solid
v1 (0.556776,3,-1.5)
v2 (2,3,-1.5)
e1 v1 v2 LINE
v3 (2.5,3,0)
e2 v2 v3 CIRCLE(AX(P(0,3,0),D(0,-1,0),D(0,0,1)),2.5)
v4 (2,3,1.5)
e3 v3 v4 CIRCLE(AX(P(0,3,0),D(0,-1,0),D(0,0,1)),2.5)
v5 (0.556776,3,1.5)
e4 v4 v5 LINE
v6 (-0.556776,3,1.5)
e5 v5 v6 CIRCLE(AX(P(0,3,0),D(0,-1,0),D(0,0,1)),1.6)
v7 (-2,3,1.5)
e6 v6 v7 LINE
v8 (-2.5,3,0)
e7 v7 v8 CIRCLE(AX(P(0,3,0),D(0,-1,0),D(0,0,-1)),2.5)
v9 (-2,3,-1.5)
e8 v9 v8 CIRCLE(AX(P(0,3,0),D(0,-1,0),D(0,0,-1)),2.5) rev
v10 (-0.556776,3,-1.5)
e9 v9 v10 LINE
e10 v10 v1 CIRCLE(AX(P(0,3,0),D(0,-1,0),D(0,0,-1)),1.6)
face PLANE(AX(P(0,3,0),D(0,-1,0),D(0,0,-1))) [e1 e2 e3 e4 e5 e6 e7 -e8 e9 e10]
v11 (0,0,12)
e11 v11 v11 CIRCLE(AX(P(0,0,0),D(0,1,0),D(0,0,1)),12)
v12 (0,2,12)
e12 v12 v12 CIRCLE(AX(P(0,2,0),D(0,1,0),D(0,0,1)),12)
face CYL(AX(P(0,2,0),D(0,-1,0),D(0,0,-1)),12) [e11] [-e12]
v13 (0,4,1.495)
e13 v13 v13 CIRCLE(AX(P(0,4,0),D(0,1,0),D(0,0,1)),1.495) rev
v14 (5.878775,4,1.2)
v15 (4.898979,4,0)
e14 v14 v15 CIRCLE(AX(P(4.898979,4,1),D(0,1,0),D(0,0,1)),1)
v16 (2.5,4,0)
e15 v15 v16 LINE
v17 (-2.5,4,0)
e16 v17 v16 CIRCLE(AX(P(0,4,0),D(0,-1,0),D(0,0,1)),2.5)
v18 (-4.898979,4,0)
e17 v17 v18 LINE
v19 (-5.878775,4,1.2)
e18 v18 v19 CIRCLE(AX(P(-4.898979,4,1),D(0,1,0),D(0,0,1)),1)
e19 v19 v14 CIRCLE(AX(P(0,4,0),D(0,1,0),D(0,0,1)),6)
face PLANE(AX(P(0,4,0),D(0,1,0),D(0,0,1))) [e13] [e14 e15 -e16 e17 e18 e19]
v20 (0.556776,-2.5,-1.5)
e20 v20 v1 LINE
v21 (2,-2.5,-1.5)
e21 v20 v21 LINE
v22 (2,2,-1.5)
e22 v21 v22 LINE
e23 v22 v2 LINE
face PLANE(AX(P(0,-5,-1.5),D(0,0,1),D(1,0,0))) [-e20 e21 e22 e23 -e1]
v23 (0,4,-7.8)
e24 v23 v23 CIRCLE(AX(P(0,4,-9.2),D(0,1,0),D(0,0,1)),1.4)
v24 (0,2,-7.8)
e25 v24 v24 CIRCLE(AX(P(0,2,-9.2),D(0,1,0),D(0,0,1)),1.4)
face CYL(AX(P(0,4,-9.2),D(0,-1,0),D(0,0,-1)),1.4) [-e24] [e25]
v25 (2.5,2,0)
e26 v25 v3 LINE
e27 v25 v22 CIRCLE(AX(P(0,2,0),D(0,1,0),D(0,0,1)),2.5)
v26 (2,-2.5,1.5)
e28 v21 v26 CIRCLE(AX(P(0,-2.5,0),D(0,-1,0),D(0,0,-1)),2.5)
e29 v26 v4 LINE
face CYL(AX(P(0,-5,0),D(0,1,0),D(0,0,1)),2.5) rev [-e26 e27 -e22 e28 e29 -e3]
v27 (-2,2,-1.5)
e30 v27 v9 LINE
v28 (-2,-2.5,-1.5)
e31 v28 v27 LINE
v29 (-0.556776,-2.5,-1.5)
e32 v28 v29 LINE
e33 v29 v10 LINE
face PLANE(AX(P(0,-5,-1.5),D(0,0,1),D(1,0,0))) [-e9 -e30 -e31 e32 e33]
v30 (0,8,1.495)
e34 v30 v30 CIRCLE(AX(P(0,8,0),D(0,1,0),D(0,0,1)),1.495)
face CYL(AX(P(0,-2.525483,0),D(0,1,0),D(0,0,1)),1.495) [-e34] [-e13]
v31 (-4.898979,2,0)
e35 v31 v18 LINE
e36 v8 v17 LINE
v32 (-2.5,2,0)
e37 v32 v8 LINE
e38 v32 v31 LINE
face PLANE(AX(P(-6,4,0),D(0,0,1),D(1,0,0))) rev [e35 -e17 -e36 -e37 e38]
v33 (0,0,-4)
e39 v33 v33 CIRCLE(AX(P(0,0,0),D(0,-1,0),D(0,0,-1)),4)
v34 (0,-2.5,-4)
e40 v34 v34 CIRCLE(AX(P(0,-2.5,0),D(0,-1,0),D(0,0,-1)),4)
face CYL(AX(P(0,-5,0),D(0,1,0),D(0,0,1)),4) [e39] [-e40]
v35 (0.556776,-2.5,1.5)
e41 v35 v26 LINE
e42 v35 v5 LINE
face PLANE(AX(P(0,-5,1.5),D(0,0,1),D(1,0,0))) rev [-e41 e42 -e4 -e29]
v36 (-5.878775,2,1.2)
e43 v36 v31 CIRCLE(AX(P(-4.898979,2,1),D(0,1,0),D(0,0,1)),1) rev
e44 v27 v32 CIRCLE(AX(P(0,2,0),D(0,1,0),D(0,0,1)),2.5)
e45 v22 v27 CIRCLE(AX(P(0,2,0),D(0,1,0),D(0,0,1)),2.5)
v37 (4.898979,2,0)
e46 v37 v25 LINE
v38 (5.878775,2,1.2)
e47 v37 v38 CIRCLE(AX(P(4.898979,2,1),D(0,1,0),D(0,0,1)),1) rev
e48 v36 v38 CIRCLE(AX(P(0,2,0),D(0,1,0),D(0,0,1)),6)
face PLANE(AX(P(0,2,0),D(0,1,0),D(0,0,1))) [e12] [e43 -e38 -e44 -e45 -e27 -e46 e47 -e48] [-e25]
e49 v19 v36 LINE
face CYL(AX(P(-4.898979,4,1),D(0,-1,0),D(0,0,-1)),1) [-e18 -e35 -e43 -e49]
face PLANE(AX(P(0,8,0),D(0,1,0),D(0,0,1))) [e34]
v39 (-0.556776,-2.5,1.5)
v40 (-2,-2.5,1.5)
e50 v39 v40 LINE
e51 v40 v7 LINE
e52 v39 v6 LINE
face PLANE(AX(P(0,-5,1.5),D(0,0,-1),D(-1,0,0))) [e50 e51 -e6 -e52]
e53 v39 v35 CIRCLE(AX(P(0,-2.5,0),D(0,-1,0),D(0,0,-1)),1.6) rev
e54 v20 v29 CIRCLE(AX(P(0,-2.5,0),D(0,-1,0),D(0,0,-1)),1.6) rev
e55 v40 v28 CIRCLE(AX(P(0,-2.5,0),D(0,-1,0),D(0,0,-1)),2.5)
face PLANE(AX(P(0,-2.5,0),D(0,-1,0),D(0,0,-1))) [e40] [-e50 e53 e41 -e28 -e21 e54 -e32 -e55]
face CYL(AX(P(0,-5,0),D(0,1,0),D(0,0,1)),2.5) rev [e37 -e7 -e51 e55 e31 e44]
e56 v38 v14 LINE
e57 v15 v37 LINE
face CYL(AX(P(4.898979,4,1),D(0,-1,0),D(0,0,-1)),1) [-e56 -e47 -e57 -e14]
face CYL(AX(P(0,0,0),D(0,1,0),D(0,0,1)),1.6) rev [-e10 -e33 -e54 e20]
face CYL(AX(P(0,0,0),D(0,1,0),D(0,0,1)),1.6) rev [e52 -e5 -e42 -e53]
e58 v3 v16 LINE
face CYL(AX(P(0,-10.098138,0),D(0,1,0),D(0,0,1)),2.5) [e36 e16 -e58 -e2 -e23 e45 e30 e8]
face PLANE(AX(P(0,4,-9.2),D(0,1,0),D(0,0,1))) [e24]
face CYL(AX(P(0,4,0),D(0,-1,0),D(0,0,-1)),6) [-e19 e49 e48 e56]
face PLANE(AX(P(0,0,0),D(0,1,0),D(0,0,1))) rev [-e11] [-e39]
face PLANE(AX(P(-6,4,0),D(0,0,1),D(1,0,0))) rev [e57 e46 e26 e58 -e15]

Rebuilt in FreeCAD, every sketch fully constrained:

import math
import FreeCAD as App
import Part
import Sketcher

V = App.Vector
Q = App.Units.Quantity


def edges_at(feature, points):
    """Names of the edges that pass closest to the given points."""
    edges = feature.Shape.Edges
    near = lambda p: min(range(len(edges)), key=lambda i: edges[i].distToShape(Part.Vertex(*p))[0])
    return sorted({f"Edge{near(p) + 1}" for p in points})

doc = App.newDocument("Part")
body = doc.addObject("PartDesign::Body", "Body")

# Sketch on XZ plane
sketch1 = body.newObject("Sketcher::SketchObject", "Sketch")
sketch1.AttachmentSupport = (doc.getObject("XZ_Plane"), [""])
sketch1.MapMode = "FlatFace"
sketch1.addGeometry(Part.Circle(V(0, 0, 0), V(0, 0, 1), 12), False)
sketch1.addConstraint(Sketcher.Constraint("Coincident", 0, 3, -1, 1))
sketch1.addConstraint(Sketcher.Constraint("Diameter", 0, Q("24 mm")))
pad1 = body.newObject("PartDesign::Pad", "Pad")
pad1.Profile = sketch1
pad1.Length = 2
pad1.Reversed = True

# Sketch on XZ plane
sketch2 = body.newObject("Sketcher::SketchObject", "Sketch001")
sketch2.AttachmentSupport = (doc.getObject("XZ_Plane"), [""])
sketch2.MapMode = "FlatFace"
sketch2.AttachmentOffset = App.Placement(V(0, 0, -2), App.Rotation())
sketch2.addGeometry(Part.Circle(V(0, -9.5, 0), V(0, 0, 1), 1.5), False)
sketch2.addGeometry(Part.LineSegment(V(6, 0, 0), V(-6, 0, 0)), False)
sketch2.addGeometry(Part.ArcOfCircle(Part.Circle(V(0, 0, 0), V(0, 0, 1), 6), math.radians(0), math.radians(180)), False)
sketch2.addConstraint(Sketcher.Constraint("Coincident", 1, 1, 2, 1))
sketch2.addConstraint(Sketcher.Constraint("Coincident", 2, 2, 1, 2))
sketch2.addConstraint(Sketcher.Constraint("Horizontal", 1))
sketch2.addConstraint(Sketcher.Constraint("Coincident", 2, 3, -1, 1))
sketch2.addConstraint(Sketcher.Constraint("PointOnObject", 0, 3, -2))
sketch2.addConstraint(Sketcher.Constraint("PointOnObject", 1, 1, -1))
sketch2.addConstraint(Sketcher.Constraint("Diameter", 0, Q("3 mm")))
sketch2.addConstraint(Sketcher.Constraint("Radius", 2, Q("6 mm")))
sketch2.addConstraint(Sketcher.Constraint("DistanceY", 0, 3, -1, 1, Q("9.5 mm")))
pad2 = body.newObject("PartDesign::Pad", "Pad001")
pad2.Profile = sketch2
pad2.Length = 2
pad2.Reversed = True

# Sketch on XZ plane
sketch3 = body.newObject("Sketcher::SketchObject", "Sketch002")
sketch3.AttachmentSupport = (doc.getObject("XZ_Plane"), [""])
sketch3.MapMode = "FlatFace"
sketch3.addGeometry(Part.Circle(V(0, 0, 0), V(0, 0, 1), 1.5), False)
sketch3.addConstraint(Sketcher.Constraint("Coincident", 0, 3, -1, 1))
sketch3.addConstraint(Sketcher.Constraint("Diameter", 0, Q("3 mm")))
pocket1 = body.newObject("PartDesign::Pocket", "Pocket")
pocket1.Profile = sketch3
pocket1.Length = 5

# Sketch on XZ plane
sketch4 = body.newObject("Sketcher::SketchObject", "Sketch003")
sketch4.AttachmentSupport = (doc.getObject("XZ_Plane"), [""])
sketch4.MapMode = "FlatFace"
sketch4.AttachmentOffset = App.Placement(V(0, 0, -2), App.Rotation())
sketch4.addGeometry(Part.Circle(V(0, 0, 0), V(0, 0, 1), 4), False)
sketch4.addConstraint(Sketcher.Constraint("Coincident", 0, 3, -1, 1))
sketch4.addConstraint(Sketcher.Constraint("Diameter", 0, Q("8 mm")))
pocket2 = body.newObject("PartDesign::Pocket", "Pocket001")
pocket2.Profile = sketch4
pocket2.Length = 2

# Sketch on XZ plane
sketch5 = body.newObject("Sketcher::SketchObject", "Sketch004")
sketch5.AttachmentSupport = (doc.getObject("XZ_Plane"), [""])
sketch5.MapMode = "FlatFace"
sketch5.AttachmentOffset = App.Placement(V(0, 0, -2), App.Rotation())
sketch5.addGeometry(Part.Circle(V(0, -9.5, 0), V(0, 0, 1), 1.5), False)
sketch5.addConstraint(Sketcher.Constraint("PointOnObject", 0, 3, -2))
sketch5.addConstraint(Sketcher.Constraint("Diameter", 0, Q("3 mm")))
sketch5.addConstraint(Sketcher.Constraint("DistanceY", 0, 3, -1, 1, Q("9.5 mm")))
pocket3 = body.newObject("PartDesign::Pocket", "Pocket002")
pocket3.Profile = sketch5
pocket3.Length = 2

# Sketch on XZ plane
sketch6 = body.newObject("Sketcher::SketchObject", "Sketch005")
sketch6.AttachmentSupport = (doc.getObject("XZ_Plane"), [""])
sketch6.MapMode = "FlatFace"
sketch6.AttachmentOffset = App.Placement(V(0, 0, -2), App.Rotation())
sketch6.addGeometry(Part.Circle(V(0, -9.2, 0), V(0, 0, 1), 1.4), False)
sketch6.addConstraint(Sketcher.Constraint("PointOnObject", 0, 3, -2))
sketch6.addConstraint(Sketcher.Constraint("Diameter", 0, Q("2.8 mm")))
sketch6.addConstraint(Sketcher.Constraint("DistanceY", 0, 3, -1, 1, Q("9.2 mm")))
pad3 = body.newObject("PartDesign::Pad", "Pad002")
pad3.Profile = sketch6
pad3.Length = 2
pad3.Reversed = True

# Sketch on XZ plane
sketch7 = body.newObject("Sketcher::SketchObject", "Sketch006")
sketch7.AttachmentSupport = (doc.getObject("XZ_Plane"), [""])
sketch7.MapMode = "FlatFace"
sketch7.AttachmentOffset = App.Placement(V(0, 0, -2), App.Rotation())
sketch7.addGeometry(Part.Circle(V(0, 0, 0), V(0, 0, 1), 1.6), False)
sketch7.addConstraint(Sketcher.Constraint("Coincident", 0, 3, -1, 1))
sketch7.addConstraint(Sketcher.Constraint("Diameter", 0, Q("3.2 mm")))
pocket4 = body.newObject("PartDesign::Pocket", "Pocket003")
pocket4.Profile = sketch7
pocket4.Length = 2
pocket4.Reversed = True
doc.recompute()

fillet = body.newObject("PartDesign::Fillet", "Fillet")
fillet.Base = (pocket4, edges_at(pocket4, [(-6, 3, 0), (6, 3, 0)]))
fillet.Radius = 1

# Sketch on XZ plane
sketch8 = body.newObject("Sketcher::SketchObject", "Sketch007")
sketch8.AttachmentSupport = (doc.getObject("XZ_Plane"), [""])
sketch8.MapMode = "FlatFace"
sketch8.addGeometry(Part.Circle(V(0, 0, 0), V(0, 0, 1), 4), False)
sketch8.addGeometry(Part.LineSegment(V(-2, 1.5, 0), V(-0.6, 1.5, 0)), False)
sketch8.addGeometry(Part.ArcOfCircle(Part.Circle(V(0, 0, 0), V(0, 0, 1), 1.6), math.radians(70), math.radians(110)), False)
sketch8.addGeometry(Part.LineSegment(V(0.6, 1.5, 0), V(2, 1.5, 0)), False)
sketch8.addGeometry(Part.ArcOfCircle(Part.Circle(V(0, 0, 0), V(0, 0, 1), 2.5), math.radians(-37), math.radians(37)), False)
sketch8.addGeometry(Part.LineSegment(V(2, -1.5, 0), V(0.6, -1.5, 0)), False)
sketch8.addGeometry(Part.ArcOfCircle(Part.Circle(V(0, 0, 0), V(0, 0, 1), 1.6), math.radians(-110), math.radians(-70)), False)
sketch8.addGeometry(Part.LineSegment(V(-0.6, -1.5, 0), V(-2, -1.5, 0)), False)
sketch8.addGeometry(Part.ArcOfCircle(Part.Circle(V(0, 0, 0), V(0, 0, 1), 2.5), math.radians(143), math.radians(217)), False)
sketch8.addConstraint(Sketcher.Constraint("Coincident", 1, 2, 2, 2))
sketch8.addConstraint(Sketcher.Constraint("Coincident", 2, 1, 3, 1))
sketch8.addConstraint(Sketcher.Constraint("Coincident", 3, 2, 4, 2))
sketch8.addConstraint(Sketcher.Constraint("Coincident", 4, 1, 5, 1))
sketch8.addConstraint(Sketcher.Constraint("Coincident", 5, 2, 6, 2))
sketch8.addConstraint(Sketcher.Constraint("Coincident", 6, 1, 7, 1))
sketch8.addConstraint(Sketcher.Constraint("Coincident", 7, 2, 8, 2))
sketch8.addConstraint(Sketcher.Constraint("Coincident", 8, 1, 1, 1))
sketch8.addConstraint(Sketcher.Constraint("Horizontal", 1))
sketch8.addConstraint(Sketcher.Constraint("Horizontal", 3))
sketch8.addConstraint(Sketcher.Constraint("Horizontal", 5))
sketch8.addConstraint(Sketcher.Constraint("Horizontal", 7))
sketch8.addConstraint(Sketcher.Constraint("Coincident", 0, 3, -1, 1))
sketch8.addConstraint(Sketcher.Constraint("Coincident", 2, 3, -1, 1))
sketch8.addConstraint(Sketcher.Constraint("Coincident", 4, 3, -1, 1))
sketch8.addConstraint(Sketcher.Constraint("Coincident", 6, 3, -1, 1))
sketch8.addConstraint(Sketcher.Constraint("Coincident", 8, 3, -1, 1))
sketch8.addConstraint(Sketcher.Constraint("Equal", 2, 6))
sketch8.addConstraint(Sketcher.Constraint("Equal", 4, 8))
sketch8.addConstraint(Sketcher.Constraint("Horizontal", 1, 2, 2, 1))
sketch8.addConstraint(Sketcher.Constraint("Horizontal", 5, 2, 6, 1))
sketch8.addConstraint(Sketcher.Constraint("Vertical", 3, 2, 4, 1))
sketch8.addConstraint(Sketcher.Constraint("Diameter", 0, Q("8 mm")))
sketch8.addConstraint(Sketcher.Constraint("Radius", 2, Q("1.6 mm")))
sketch8.addConstraint(Sketcher.Constraint("Radius", 4, Q("2.5 mm")))
sketch8.addConstraint(Sketcher.Constraint("DistanceX", -1, 1, 3, 2, Q("2 mm")))
pad4 = body.newObject("PartDesign::Pad", "Pad003")
pad4.Profile = sketch8
pad4.Length = 5

# Sketch on XZ plane
sketch9 = body.newObject("Sketcher::SketchObject", "Sketch008")
sketch9.AttachmentSupport = (doc.getObject("XZ_Plane"), [""])
sketch9.MapMode = "FlatFace"
sketch9.AttachmentOffset = App.Placement(V(0, 0, -2), App.Rotation())
sketch9.addGeometry(Part.Circle(V(0, 0, 0), V(0, 0, 1), 1.6), False)
sketch9.addConstraint(Sketcher.Constraint("Coincident", 0, 3, -1, 1))
sketch9.addConstraint(Sketcher.Constraint("Diameter", 0, Q("3.2 mm")))
pad5 = body.newObject("PartDesign::Pad", "Pad004")
pad5.Profile = sketch9
pad5.Type = "TwoLengths"
pad5.Length = 6
pad5.Length2 = 2
pad5.Reversed = True

# Sketch on XZ plane
sketch10 = body.newObject("Sketcher::SketchObject", "Sketch009")
sketch10.AttachmentSupport = (doc.getObject("XZ_Plane"), [""])
sketch10.MapMode = "FlatFace"
sketch10.AttachmentOffset = App.Placement(V(0, 0, -8), App.Rotation())
sketch10.addGeometry(Part.Circle(V(0, 0, 0), V(0, 0, 1), 1.6), False)
sketch10.addGeometry(Part.Circle(V(0, 0, 0), V(0, 0, 1), 1.5), False)
sketch10.addConstraint(Sketcher.Constraint("Coincident", 0, 3, -1, 1))
sketch10.addConstraint(Sketcher.Constraint("Coincident", 1, 3, -1, 1))
sketch10.addConstraint(Sketcher.Constraint("Diameter", 0, Q("3.2 mm")))
sketch10.addConstraint(Sketcher.Constraint("Diameter", 1, Q("2.99 mm")))
pocket5 = body.newObject("PartDesign::Pocket", "Pocket004")
pocket5.Profile = sketch10
pocket5.Length = 6
pocket5.Reversed = True

# Sketch on XZ plane
sketch11 = body.newObject("Sketcher::SketchObject", "Sketch010")
sketch11.AttachmentSupport = (doc.getObject("XZ_Plane"), [""])
sketch11.MapMode = "FlatFace"
sketch11.AttachmentOffset = App.Placement(V(0, 0, -2), App.Rotation())
sketch11.addGeometry(Part.Circle(V(0, 0, 0), V(0, 0, 1), 4), False)
sketch11.addConstraint(Sketcher.Constraint("Coincident", 0, 3, -1, 1))
sketch11.addConstraint(Sketcher.Constraint("Diameter", 0, Q("8 mm")))
pad6 = body.newObject("PartDesign::Pad", "Pad005")
pad6.Profile = sketch11
pad6.Length = 2
pad6.Reversed = True

# Sketch on XZ plane
sketch12 = body.newObject("Sketcher::SketchObject", "Sketch011")
sketch12.AttachmentSupport = (doc.getObject("XZ_Plane"), [""])
sketch12.MapMode = "FlatFace"
sketch12.AttachmentOffset = App.Placement(V(0, 0, 5), App.Rotation())
sketch12.addGeometry(Part.LineSegment(V(-0.6, 1.5, 0), V(-2, 1.5, 0)), False)
sketch12.addGeometry(Part.ArcOfCircle(Part.Circle(V(0, 0, 0), V(0, 0, 1), 2.5), math.radians(143), math.radians(217)), False)
sketch12.addGeometry(Part.LineSegment(V(-2, -1.5, 0), V(-0.6, -1.5, 0)), False)
sketch12.addGeometry(Part.ArcOfCircle(Part.Circle(V(0, 0, 0), V(0, 0, 1), 1.6), math.radians(-110), math.radians(-70)), False)
sketch12.addGeometry(Part.LineSegment(V(0.6, -1.5, 0), V(2, -1.5, 0)), False)
sketch12.addGeometry(Part.ArcOfCircle(Part.Circle(V(0, 0, 0), V(0, 0, 1), 2.5), math.radians(-37), math.radians(37)), False)
sketch12.addGeometry(Part.LineSegment(V(2, 1.5, 0), V(0.6, 1.5, 0)), False)
sketch12.addGeometry(Part.ArcOfCircle(Part.Circle(V(0, 0, 0), V(0, 0, 1), 1.6), math.radians(70), math.radians(110)), False)
sketch12.addConstraint(Sketcher.Constraint("Coincident", 0, 2, 1, 1))
sketch12.addConstraint(Sketcher.Constraint("Coincident", 1, 2, 2, 1))
sketch12.addConstraint(Sketcher.Constraint("Coincident", 2, 2, 3, 1))
sketch12.addConstraint(Sketcher.Constraint("Coincident", 3, 2, 4, 1))
sketch12.addConstraint(Sketcher.Constraint("Coincident", 4, 2, 5, 1))
sketch12.addConstraint(Sketcher.Constraint("Coincident", 5, 2, 6, 1))
sketch12.addConstraint(Sketcher.Constraint("Coincident", 6, 2, 7, 1))
sketch12.addConstraint(Sketcher.Constraint("Coincident", 7, 2, 0, 1))
sketch12.addConstraint(Sketcher.Constraint("Horizontal", 0))
sketch12.addConstraint(Sketcher.Constraint("Horizontal", 2))
sketch12.addConstraint(Sketcher.Constraint("Horizontal", 4))
sketch12.addConstraint(Sketcher.Constraint("Horizontal", 6))
sketch12.addConstraint(Sketcher.Constraint("Coincident", 1, 3, -1, 1))
sketch12.addConstraint(Sketcher.Constraint("Coincident", 3, 3, -1, 1))
sketch12.addConstraint(Sketcher.Constraint("Coincident", 5, 3, -1, 1))
sketch12.addConstraint(Sketcher.Constraint("Coincident", 7, 3, -1, 1))
sketch12.addConstraint(Sketcher.Constraint("Equal", 1, 5))
sketch12.addConstraint(Sketcher.Constraint("Equal", 3, 7))
sketch12.addConstraint(Sketcher.Constraint("Horizontal", 2, 2, 3, 2))
sketch12.addConstraint(Sketcher.Constraint("Horizontal", 0, 2, 5, 2))
sketch12.addConstraint(Sketcher.Constraint("Vertical", 0, 2, 1, 2))
sketch12.addConstraint(Sketcher.Constraint("Radius", 1, Q("2.5 mm")))
sketch12.addConstraint(Sketcher.Constraint("Radius", 3, Q("1.6 mm")))
sketch12.addConstraint(Sketcher.Constraint("DistanceX", 0, 2, -1, 1, Q("2 mm")))
pocket6 = body.newObject("PartDesign::Pocket", "Pocket005")
pocket6.Profile = sketch12
pocket6.Length = 8

# Sketch on XZ plane
sketch13 = body.newObject("Sketcher::SketchObject", "Sketch012")
sketch13.AttachmentSupport = (doc.getObject("XZ_Plane"), [""])
sketch13.MapMode = "FlatFace"
sketch13.AttachmentOffset = App.Placement(V(0, 0, 5), App.Rotation())
sketch13.addGeometry(Part.Circle(V(0, 0, 0), V(0, 0, 1), 7), False)
sketch13.addConstraint(Sketcher.Constraint("Coincident", 0, 3, -1, 1))
sketch13.addConstraint(Sketcher.Constraint("Diameter", 0, Q("13.6669 mm")))
pocket7 = body.newObject("PartDesign::Pocket", "Pocket006")
pocket7.Profile = sketch13
pocket7.Length = 1

# Sketch on XZ plane
sketch14 = body.newObject("Sketcher::SketchObject", "Sketch013")
sketch14.AttachmentSupport = (doc.getObject("XZ_Plane"), [""])
sketch14.MapMode = "FlatFace"
sketch14.AttachmentOffset = App.Placement(V(0, 0, 4), App.Rotation())
sketch14.addGeometry(Part.Circle(V(0, 0, 0), V(0, 0, 1), 7), False)
sketch14.addConstraint(Sketcher.Constraint("Coincident", 0, 3, -1, 1))
sketch14.addConstraint(Sketcher.Constraint("Diameter", 0, Q("14.066108 mm")))
pocket8 = body.newObject("PartDesign::Pocket", "Pocket007")
pocket8.Profile = sketch14
pocket8.Length = 1

# Sketch on XZ plane
sketch15 = body.newObject("Sketcher::SketchObject", "Sketch014")
sketch15.AttachmentSupport = (doc.getObject("XZ_Plane"), [""])
sketch15.MapMode = "FlatFace"
sketch15.AttachmentOffset = App.Placement(V(0, 0, 3), App.Rotation())
sketch15.addGeometry(Part.Circle(V(0, 0, 0), V(0, 0, 1), 9), False)
sketch15.addConstraint(Sketcher.Constraint("Coincident", 0, 3, -1, 1))
sketch15.addConstraint(Sketcher.Constraint("Diameter", 0, Q("17.553336 mm")))
pocket9 = body.newObject("PartDesign::Pocket", "Pocket008")
pocket9.Profile = sketch15
pocket9.Length = 0.5

# Sketch on XZ plane
sketch16 = body.newObject("Sketcher::SketchObject", "Sketch015")
sketch16.AttachmentSupport = (doc.getObject("XZ_Plane"), [""])
sketch16.MapMode = "FlatFace"
sketch16.AttachmentOffset = App.Placement(V(0, 0, -4), App.Rotation())
sketch16.addGeometry(Part.LineSegment(V(-4, 0, 0), V(-3, 0, 0)), False)
sketch16.addGeometry(Part.ArcOfCircle(Part.Circle(V(0, 0, 0), V(0, 0, 1), 3), math.radians(180), math.radians(360)), False)
sketch16.addGeometry(Part.LineSegment(V(3, 0, 0), V(4, 0, 0)), False)
sketch16.addGeometry(Part.LineSegment(V(4, 0, 0), V(6.5, -5.4, 0)), False)
sketch16.addGeometry(Part.LineSegment(V(6.5, -5.4, 0), V(-6.4, -6, 0)), False)
sketch16.addGeometry(Part.LineSegment(V(-6.4, -6, 0), V(-4, 0, 0)), False)
sketch16.addConstraint(Sketcher.Constraint("Coincident", 0, 2, 1, 1))
sketch16.addConstraint(Sketcher.Constraint("Coincident", 1, 2, 2, 1))
sketch16.addConstraint(Sketcher.Constraint("Coincident", 2, 2, 3, 1))
sketch16.addConstraint(Sketcher.Constraint("Coincident", 3, 2, 4, 1))
sketch16.addConstraint(Sketcher.Constraint("Coincident", 4, 2, 5, 1))
sketch16.addConstraint(Sketcher.Constraint("Coincident", 5, 2, 0, 1))
sketch16.addConstraint(Sketcher.Constraint("Horizontal", 0))
sketch16.addConstraint(Sketcher.Constraint("Horizontal", 2))
sketch16.addConstraint(Sketcher.Constraint("Coincident", 1, 3, -1, 1))
sketch16.addConstraint(Sketcher.Constraint("Symmetric", 2, 2, 5, 2, -1, 1))
sketch16.addConstraint(Sketcher.Constraint("PointOnObject", 0, 2, -1))
sketch16.addConstraint(Sketcher.Constraint("Radius", 1, Q("3 mm")))
sketch16.addConstraint(Sketcher.Constraint("DistanceX", 0, 1, 0, 2, Q("1 mm")))
sketch16.addConstraint(Sketcher.Constraint("DistanceY", 3, 2, -1, 1, Q("5.447999 mm")))
sketch16.addConstraint(Sketcher.Constraint("DistanceX", -1, 1, 3, 2, Q("6.488398 mm")))
sketch16.addConstraint(Sketcher.Constraint("Distance", 4, Q("12.91277 mm")))
sketch16.addConstraint(Sketcher.Constraint("Distance", 5, Q("6.482092 mm")))
pocket10 = body.newObject("PartDesign::Pocket", "Pocket009")
pocket10.Profile = sketch16
pocket10.Length = 2
pocket10.Reversed = True

# Sketch on XZ plane
sketch17 = body.newObject("Sketcher::SketchObject", "Sketch016")
sketch17.AttachmentSupport = (doc.getObject("XZ_Plane"), [""])
sketch17.MapMode = "FlatFace"
sketch17.AttachmentOffset = App.Placement(V(0, 0, -4), App.Rotation())
sketch17.addGeometry(Part.LineSegment(V(-3, 0, 0), V(-2.5, 0, 0)), False)
sketch17.addGeometry(Part.ArcOfCircle(Part.Circle(V(0, 0, 0), V(0, 0, 1), 2.5), math.radians(180), math.radians(360)), False)
sketch17.addGeometry(Part.LineSegment(V(2.5, 0, 0), V(3, 0, 0)), False)
sketch17.addGeometry(Part.LineSegment(V(3, 0, 0), V(3.7, -4.3, 0)), False)
sketch17.addGeometry(Part.LineSegment(V(3.7, -4.3, 0), V(-7.1, -5.5, 0)), False)
sketch17.addGeometry(Part.LineSegment(V(-7.1, -5.5, 0), V(-3, 0, 0)), False)
sketch17.addConstraint(Sketcher.Constraint("Coincident", 0, 2, 1, 1))
sketch17.addConstraint(Sketcher.Constraint("Coincident", 1, 2, 2, 1))
sketch17.addConstraint(Sketcher.Constraint("Coincident", 2, 2, 3, 1))
sketch17.addConstraint(Sketcher.Constraint("Coincident", 3, 2, 4, 1))
sketch17.addConstraint(Sketcher.Constraint("Coincident", 4, 2, 5, 1))
sketch17.addConstraint(Sketcher.Constraint("Coincident", 5, 2, 0, 1))
sketch17.addConstraint(Sketcher.Constraint("Horizontal", 0))
sketch17.addConstraint(Sketcher.Constraint("Horizontal", 2))
sketch17.addConstraint(Sketcher.Constraint("Coincident", 1, 3, -1, 1))
sketch17.addConstraint(Sketcher.Constraint("Symmetric", 2, 2, 5, 2, -1, 1))
sketch17.addConstraint(Sketcher.Constraint("PointOnObject", 0, 2, -1))
sketch17.addConstraint(Sketcher.Constraint("Radius", 1, Q("2.5 mm")))
sketch17.addConstraint(Sketcher.Constraint("DistanceX", 0, 1, 0, 2, Q("0.5 mm")))
sketch17.addConstraint(Sketcher.Constraint("Distance", 3, Q("4.31774 mm")))
sketch17.addConstraint(Sketcher.Constraint("DistanceX", 4, 2, -1, 1, Q("7.080868 mm")))
sketch17.addConstraint(Sketcher.Constraint("DistanceY", 4, 2, -1, 1, Q("5.49936 mm")))
sketch17.addConstraint(Sketcher.Constraint("DistanceX", 4, 2, 3, 2, Q("10.775991 mm")))
pocket11 = body.newObject("PartDesign::Pocket", "Pocket010")
pocket11.Profile = sketch17
pocket11.Length = 2
pocket11.Reversed = True

doc.recompute()
